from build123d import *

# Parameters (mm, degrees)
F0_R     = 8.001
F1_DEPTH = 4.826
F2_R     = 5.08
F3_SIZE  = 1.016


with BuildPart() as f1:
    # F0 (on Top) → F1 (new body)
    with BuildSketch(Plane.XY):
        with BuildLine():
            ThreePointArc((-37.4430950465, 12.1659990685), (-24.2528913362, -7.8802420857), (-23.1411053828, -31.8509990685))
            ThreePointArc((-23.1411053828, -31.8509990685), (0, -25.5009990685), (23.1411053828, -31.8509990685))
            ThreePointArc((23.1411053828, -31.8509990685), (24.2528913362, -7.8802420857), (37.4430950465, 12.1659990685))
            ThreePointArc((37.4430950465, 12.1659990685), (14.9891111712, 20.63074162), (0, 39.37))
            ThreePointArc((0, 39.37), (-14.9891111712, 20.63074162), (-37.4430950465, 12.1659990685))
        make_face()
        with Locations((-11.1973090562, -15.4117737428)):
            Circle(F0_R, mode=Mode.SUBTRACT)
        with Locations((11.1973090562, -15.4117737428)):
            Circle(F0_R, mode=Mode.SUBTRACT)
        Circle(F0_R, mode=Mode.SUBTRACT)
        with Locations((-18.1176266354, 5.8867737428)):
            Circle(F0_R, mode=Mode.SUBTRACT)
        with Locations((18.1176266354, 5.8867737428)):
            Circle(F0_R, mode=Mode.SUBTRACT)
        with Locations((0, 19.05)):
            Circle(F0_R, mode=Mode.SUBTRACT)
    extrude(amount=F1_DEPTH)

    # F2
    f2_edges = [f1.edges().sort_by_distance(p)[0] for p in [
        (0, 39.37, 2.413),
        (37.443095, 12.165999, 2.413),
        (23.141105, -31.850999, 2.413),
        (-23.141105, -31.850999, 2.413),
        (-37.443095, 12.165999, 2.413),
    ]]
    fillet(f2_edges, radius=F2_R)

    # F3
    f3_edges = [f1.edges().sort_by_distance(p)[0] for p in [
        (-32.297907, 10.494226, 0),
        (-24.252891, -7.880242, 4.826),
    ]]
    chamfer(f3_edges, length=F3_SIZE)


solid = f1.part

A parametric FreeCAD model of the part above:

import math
import FreeCAD as App
import Part
import Sketcher
Q = App.Units.Quantity


def edges_at(feature, points):
    """Names of the edges that pass closest to the given points."""
    edges = feature.Shape.Edges
    near = lambda p: min(range(len(edges)), key=lambda i: edges[i].distToShape(Part.Vertex(*p))[0])
    return sorted({f"Edge{near(p) + 1}" for p in points})

doc = App.newDocument("Part")
body = doc.addObject("PartDesign::Body", "Body")

# Sketch on XY plane
sketch1 = doc.addObject("Sketcher::SketchObject", "Sketch")
body.addObject(sketch1)
sketch1.AttachmentSupport = (doc.XY_Plane, [""])
sketch1.MapMode = "FlatFace"
sketch1.addGeometry([
    Part.ArcOfCircle(Part.Circle(App.Vector(-67, -22, 0), App.Vector(0, 0, 1), 45), math.radians(-13), math.radians(49)),  # 0
    Part.ArcOfCircle(Part.Circle(App.Vector(0, -71, 0), App.Vector(0, 0, 1), 45), math.radians(59), math.radians(121)),  # 1
    Part.ArcOfCircle(Part.Circle(App.Vector(67, -22, 0), App.Vector(0, 0, 1), 45), math.radians(131), math.radians(193)),  # 2
    Part.ArcOfCircle(Part.Circle(App.Vector(42, 57, 0), App.Vector(0, 0, 1), 45), math.radians(-157), math.radians(-95)),  # 3
    Part.ArcOfCircle(Part.Circle(App.Vector(-42, 57, 0), App.Vector(0, 0, 1), 45), math.radians(-85), math.radians(-23)),  # 4
    Part.Circle(App.Vector(-11, -15, 0), App.Vector(0, 0, 1), 8),  # 5
    Part.Circle(App.Vector(11, -15, 0), App.Vector(0, 0, 1), 8),  # 6
    Part.Circle(App.Vector(0, 0, 0), App.Vector(0, 0, 1), 8),  # 7
    Part.Circle(App.Vector(-18, 6, 0), App.Vector(0, 0, 1), 8),  # 8
    Part.Circle(App.Vector(18, 6, 0), App.Vector(0, 0, 1), 8),  # 9
    Part.Circle(App.Vector(0, 19, 0), App.Vector(0, 0, 1), 8),  # 10
], False)
sketch1.addConstraint([
    Sketcher.Constraint("Coincident", 0, 1, 1, 2),
    Sketcher.Constraint("Coincident", 1, 1, 2, 2),
    Sketcher.Constraint("Coincident", 2, 1, 3, 2),
    Sketcher.Constraint("Coincident", 3, 1, 4, 2),
    Sketcher.Constraint("Coincident", 4, 1, 0, 2),
    Sketcher.Constraint("Coincident", 7, 3, -1, 1),
    Sketcher.Constraint("Equal", 0, 1),
    Sketcher.Constraint("Equal", 1, 2),
    Sketcher.Constraint("Equal", 2, 3),
    Sketcher.Constraint("Equal", 3, 4),
    Sketcher.Constraint("Equal", 5, 6),
    Sketcher.Constraint("Equal", 6, 7),
    Sketcher.Constraint("Equal", 7, 8),
    Sketcher.Constraint("Equal", 8, 9),
    Sketcher.Constraint("Equal", 9, 10),
    Sketcher.Constraint("Symmetric", 0, 3, 2, 3, -2),
    Sketcher.Constraint("Symmetric", 3, 3, 4, 3, -2),
    Sketcher.Constraint("Symmetric", 5, 3, 6, 3, -2),
    Sketcher.Constraint("Symmetric", 8, 3, 9, 3, -2),
    Sketcher.Constraint("PointOnObject", 1, 3, -2),
    Sketcher.Constraint("PointOnObject", 10, 3, -2),
    Sketcher.Constraint("Diameter", 5, Q("0.63 in")),
    Sketcher.Constraint("DistanceY", 10, 3, 3, 1, Q("0.8 in")),
    Sketcher.Constraint("DistanceY", -1, 1, 10, 3, Q("0.75 in")),
    Sketcher.Constraint("Radius", 0, Q("45.341201 mm")),
    Sketcher.Constraint("DistanceY", 1, 3, -1, 1, Q("70.842201 mm")),
    Sketcher.Constraint("DistanceX", -1, 1, 3, 3, Q("41.640001 mm")),
    Sketcher.Constraint("DistanceY", 0, 1, -1, 1, Q("31.850999 mm")),
    Sketcher.Constraint("DistanceY", -1, 1, 2, 1, Q("12.165999 mm")),
    Sketcher.Constraint("DistanceX", 5, 3, -1, 1, Q("11.197309 mm")),
    Sketcher.Constraint("DistanceY", 0, 3, 5, 3, Q("6.47967 mm")),
    Sketcher.Constraint("DistanceY", 8, 3, 4, 3, Q("51.42577 mm")),
    Sketcher.Constraint("DistanceX", 0, 3, 8, 3, Q("49.25731 mm")),
])
pad1 = doc.addObject("PartDesign::Pad", "Pad")
body.addObject(pad1)
pad1.Profile = sketch1
pad1.Length = Q("0.19 in")
doc.recompute()

fillet = doc.addObject("PartDesign::Fillet", "Fillet")
body.addObject(fillet)
fillet.Base = (pad1, edges_at(pad1, [
    (0, 39.37, 2.413),
    (37.443, 12.166, 2.413),
    (23.141, -31.851, 2.413),
    (-23.141, -31.851, 2.413),
    (-37.443, 12.166, 2.413),
]))
fillet.Radius = Q("0.2 in")
doc.recompute()

chamfer = doc.addObject("PartDesign::Chamfer", "Chamfer")
body.addObject(chamfer)
chamfer.Base = (fillet, edges_at(fillet, [(-32.298, 10.494, 0), (-24.253, -7.88, 4.826)]))
chamfer.Size = Q("0.04 in")

doc.recompute()
